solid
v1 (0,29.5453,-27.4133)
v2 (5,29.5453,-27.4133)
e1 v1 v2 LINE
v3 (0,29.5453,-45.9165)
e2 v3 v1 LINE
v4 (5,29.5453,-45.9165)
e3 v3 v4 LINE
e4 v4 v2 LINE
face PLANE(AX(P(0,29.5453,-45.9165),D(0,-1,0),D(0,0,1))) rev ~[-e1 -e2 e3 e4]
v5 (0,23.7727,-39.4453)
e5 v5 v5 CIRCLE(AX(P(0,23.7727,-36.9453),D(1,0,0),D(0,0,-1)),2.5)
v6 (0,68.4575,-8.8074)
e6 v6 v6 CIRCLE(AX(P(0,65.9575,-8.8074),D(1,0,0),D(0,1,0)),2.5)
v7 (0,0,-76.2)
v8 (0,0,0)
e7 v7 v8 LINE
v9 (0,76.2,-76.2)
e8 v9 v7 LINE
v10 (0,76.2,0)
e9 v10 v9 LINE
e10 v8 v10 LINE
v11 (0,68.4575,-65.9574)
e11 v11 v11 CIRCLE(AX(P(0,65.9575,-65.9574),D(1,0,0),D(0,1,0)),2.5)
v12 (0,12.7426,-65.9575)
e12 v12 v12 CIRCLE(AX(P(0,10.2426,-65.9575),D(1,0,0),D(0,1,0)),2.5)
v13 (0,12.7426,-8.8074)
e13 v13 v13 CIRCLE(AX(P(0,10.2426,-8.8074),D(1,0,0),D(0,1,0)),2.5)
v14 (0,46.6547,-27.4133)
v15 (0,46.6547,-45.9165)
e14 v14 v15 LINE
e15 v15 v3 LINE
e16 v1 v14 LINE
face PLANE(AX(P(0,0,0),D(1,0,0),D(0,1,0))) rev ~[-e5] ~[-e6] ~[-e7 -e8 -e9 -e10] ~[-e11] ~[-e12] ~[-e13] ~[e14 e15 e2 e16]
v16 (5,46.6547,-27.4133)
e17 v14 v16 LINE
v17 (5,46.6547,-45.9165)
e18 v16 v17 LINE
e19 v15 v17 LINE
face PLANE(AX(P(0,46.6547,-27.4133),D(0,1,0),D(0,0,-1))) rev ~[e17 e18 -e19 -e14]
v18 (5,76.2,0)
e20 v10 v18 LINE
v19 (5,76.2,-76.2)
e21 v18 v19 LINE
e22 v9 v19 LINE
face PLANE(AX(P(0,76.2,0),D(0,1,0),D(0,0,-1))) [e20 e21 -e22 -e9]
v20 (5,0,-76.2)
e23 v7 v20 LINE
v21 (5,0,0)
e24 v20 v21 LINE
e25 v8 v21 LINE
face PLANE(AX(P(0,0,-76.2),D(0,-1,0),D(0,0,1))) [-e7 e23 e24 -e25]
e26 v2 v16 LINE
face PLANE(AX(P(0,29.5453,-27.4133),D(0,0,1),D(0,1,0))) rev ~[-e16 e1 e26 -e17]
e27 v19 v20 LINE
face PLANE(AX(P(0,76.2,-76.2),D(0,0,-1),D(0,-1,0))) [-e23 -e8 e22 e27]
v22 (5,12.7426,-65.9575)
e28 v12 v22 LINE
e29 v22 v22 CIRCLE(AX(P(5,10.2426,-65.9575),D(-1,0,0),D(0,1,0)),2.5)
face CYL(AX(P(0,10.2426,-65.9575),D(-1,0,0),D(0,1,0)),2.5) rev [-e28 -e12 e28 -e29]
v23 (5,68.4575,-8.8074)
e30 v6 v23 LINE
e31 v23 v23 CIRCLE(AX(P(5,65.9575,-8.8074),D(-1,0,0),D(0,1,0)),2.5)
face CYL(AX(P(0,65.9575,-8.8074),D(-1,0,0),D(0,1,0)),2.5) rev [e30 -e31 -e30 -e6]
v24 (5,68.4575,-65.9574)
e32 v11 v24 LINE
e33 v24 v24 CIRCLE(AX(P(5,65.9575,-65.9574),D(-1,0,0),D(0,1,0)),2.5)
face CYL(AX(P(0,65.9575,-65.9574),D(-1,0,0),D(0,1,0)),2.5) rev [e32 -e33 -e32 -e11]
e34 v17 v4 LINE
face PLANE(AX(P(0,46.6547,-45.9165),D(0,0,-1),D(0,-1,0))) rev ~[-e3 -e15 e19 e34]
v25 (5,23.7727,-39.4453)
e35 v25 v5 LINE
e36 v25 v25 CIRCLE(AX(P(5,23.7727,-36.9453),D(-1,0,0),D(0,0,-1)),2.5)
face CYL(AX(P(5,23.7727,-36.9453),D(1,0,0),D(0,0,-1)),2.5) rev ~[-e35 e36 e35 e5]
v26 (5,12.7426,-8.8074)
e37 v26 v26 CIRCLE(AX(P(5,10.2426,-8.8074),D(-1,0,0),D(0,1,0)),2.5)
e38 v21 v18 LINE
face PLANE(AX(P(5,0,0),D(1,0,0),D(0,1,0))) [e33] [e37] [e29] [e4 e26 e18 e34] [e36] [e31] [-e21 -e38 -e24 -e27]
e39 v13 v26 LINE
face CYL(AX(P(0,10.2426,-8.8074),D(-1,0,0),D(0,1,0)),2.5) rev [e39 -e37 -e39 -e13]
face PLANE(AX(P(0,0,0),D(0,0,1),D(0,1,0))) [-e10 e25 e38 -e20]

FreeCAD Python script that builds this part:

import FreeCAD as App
import Part
import Sketcher
from FreeCAD import Vector
Q = App.Units.Quantity

doc = App.newDocument("Part")
body = doc.addObject("PartDesign::Body", "Body")

sketch1 = body.newObject("Sketcher::SketchObject", "Sketch")
sketch1.AttachmentSupport = (doc.getObject("YZ_Plane"), [""])
sketch1.MapMode = "FlatFace"
sketch1.addGeometry(Part.LineSegment(Vector(0, 0, 0), Vector(0, -76.2, 0)), False)
sketch1.addGeometry(Part.LineSegment(Vector(0, -76.2, 0), Vector(76.2, -76.2, 0)), False)
sketch1.addGeometry(Part.LineSegment(Vector(76.2, -76.2, 0), Vector(76.2, 0, 0)), False)
sketch1.addGeometry(Part.LineSegment(Vector(76.2, 0, 0), Vector(0, 0, 0)), False)
sketch1.addGeometry(Part.LineSegment(Vector(46.6547, -27.4133, 0), Vector(46.6547, -45.9165, 0)), False)
sketch1.addGeometry(Part.LineSegment(Vector(46.6547, -45.9165, 0), Vector(29.5453, -45.9165, 0)), False)
sketch1.addGeometry(Part.LineSegment(Vector(29.5453, -45.9165, 0), Vector(29.5453, -27.4133, 0)), False)
sketch1.addGeometry(Part.LineSegment(Vector(29.5453, -27.4133, 0), Vector(46.6547, -27.4133, 0)), False)
sketch1.addConstraint(Sketcher.Constraint("Coincident", 0, 2, 1, 1))
sketch1.addConstraint(Sketcher.Constraint("Coincident", 1, 2, 2, 1))
sketch1.addConstraint(Sketcher.Constraint("Coincident", 2, 2, 3, 1))
sketch1.addConstraint(Sketcher.Constraint("Coincident", 3, 2, 0, 1))
sketch1.addConstraint(Sketcher.Constraint("Coincident", 4, 2, 5, 1))
sketch1.addConstraint(Sketcher.Constraint("Coincident", 5, 2, 6, 1))
sketch1.addConstraint(Sketcher.Constraint("Coincident", 6, 2, 7, 1))
sketch1.addConstraint(Sketcher.Constraint("Coincident", 7, 2, 4, 1))
sketch1.addConstraint(Sketcher.Constraint("Vertical", 0))
sketch1.addConstraint(Sketcher.Constraint("Horizontal", 1))
sketch1.addConstraint(Sketcher.Constraint("Vertical", 2))
sketch1.addConstraint(Sketcher.Constraint("Horizontal", 3))
sketch1.addConstraint(Sketcher.Constraint("Vertical", 4))
sketch1.addConstraint(Sketcher.Constraint("Horizontal", 5))
sketch1.addConstraint(Sketcher.Constraint("Vertical", 6))
sketch1.addConstraint(Sketcher.Constraint("Horizontal", 7))
sketch1.addConstraint(Sketcher.Constraint("Coincident", 3, 2, -1, 1))
sketch1.addConstraint(Sketcher.Constraint("Equal", 3, 0))
sketch1.addConstraint(Sketcher.Constraint("DistanceX", 1, 1, 1, 2, Q("3 in")))
sketch1.addConstraint(Sketcher.Constraint("DistanceX", -1, 1, 5, 2, Q("1.1632 in")))
sketch1.addConstraint(Sketcher.Constraint("DistanceX", 4, 2, 1, 2, Q("1.1632 in")))
sketch1.addConstraint(Sketcher.Constraint("DistanceY", 4, 2, 4, 1, Q("18.5032 mm")))
sketch1.addConstraint(Sketcher.Constraint("DistanceY", 4, 2, -1, 1, Q("45.9165 mm")))
pad1 = body.newObject("PartDesign::Pad", "Pad")
pad1.Profile = sketch1
pad1.Length = 5

sketch2 = body.newObject("Sketcher::SketchObject", "Sketch001")
sketch2.AttachmentSupport = (doc.getObject("YZ_Plane"), [""])
sketch2.MapMode = "FlatFace"
sketch2.addGeometry(Part.Circle(Vector(10.2426, -8.8074, 0), Vector(0, 0, 1), 2.5), False)
sketch2.addGeometry(Part.Circle(Vector(65.9575, -8.8074, 0), Vector(0, 0, 1), 2.5), False)
sketch2.addGeometry(Part.Circle(Vector(10.2426, -65.9575, 0), Vector(0, 0, 1), 2.5), False)
sketch2.addGeometry(Part.Circle(Vector(65.9575, -65.9574, 0), Vector(0, 0, 1), 2.5), False)
sketch2.addConstraint(Sketcher.Constraint("Equal", 0, 1))
sketch2.addConstraint(Sketcher.Constraint("Equal", 1, 2))
sketch2.addConstraint(Sketcher.Constraint("Equal", 2, 3))
sketch2.addConstraint(Sketcher.Constraint("Horizontal", 0, 3, 1, 3))
sketch2.addConstraint(Sketcher.Constraint("Horizontal", 2, 3, 3, 3))
sketch2.addConstraint(Sketcher.Constraint("Vertical", 0, 3, 2, 3))
sketch2.addConstraint(Sketcher.Constraint("Vertical", 1, 3, 3, 3))
sketch2.addConstraint(Sketcher.Constraint("Diameter", 0, Q("5 mm")))
sketch2.addConstraint(Sketcher.Constraint("DistanceY", 2, 3, 0, 3, Q("2.25 in")))
sketch2.addConstraint(Sketcher.Constraint("DistanceX", 0, 3, 1, 3, Q("2.1935 in")))
sketch2.addConstraint(Sketcher.Constraint("DistanceX", -1, 1, 0, 3, Q("10.2426 mm")))
sketch2.addConstraint(Sketcher.Constraint("DistanceY", 0, 3, -1, 1, Q("8.8074 mm")))
pocket1 = body.newObject("PartDesign::Pocket", "Pocket")
pocket1.Profile = sketch2
pocket1.Length = 5
pocket1.Reversed = True

sketch3 = body.newObject("Sketcher::SketchObject", "Sketch002")
sketch3.AttachmentSupport = (doc.getObject("YZ_Plane"), [""])
sketch3.MapMode = "FlatFace"
sketch3.AttachmentOffset = App.Placement(Vector(0, 0, 5), App.Rotation())
sketch3.addGeometry(Part.Circle(Vector(23.7727, -36.9453, 0), Vector(0, 0, 1), 2.5), False)
sketch3.addConstraint(Sketcher.Constraint("Diameter", 0, Q("5 mm")))
sketch3.addConstraint(Sketcher.Constraint("DistanceX", -1, 1, 0, 3, Q("23.7727 mm")))
sketch3.addConstraint(Sketcher.Constraint("DistanceY", 0, 3, -1, 1, Q("36.9453 mm")))
pocket2 = body.newObject("PartDesign::Pocket", "Pocket001")
pocket2.Profile = sketch3
pocket2.Length = Q("1 in")

doc.recompute()
